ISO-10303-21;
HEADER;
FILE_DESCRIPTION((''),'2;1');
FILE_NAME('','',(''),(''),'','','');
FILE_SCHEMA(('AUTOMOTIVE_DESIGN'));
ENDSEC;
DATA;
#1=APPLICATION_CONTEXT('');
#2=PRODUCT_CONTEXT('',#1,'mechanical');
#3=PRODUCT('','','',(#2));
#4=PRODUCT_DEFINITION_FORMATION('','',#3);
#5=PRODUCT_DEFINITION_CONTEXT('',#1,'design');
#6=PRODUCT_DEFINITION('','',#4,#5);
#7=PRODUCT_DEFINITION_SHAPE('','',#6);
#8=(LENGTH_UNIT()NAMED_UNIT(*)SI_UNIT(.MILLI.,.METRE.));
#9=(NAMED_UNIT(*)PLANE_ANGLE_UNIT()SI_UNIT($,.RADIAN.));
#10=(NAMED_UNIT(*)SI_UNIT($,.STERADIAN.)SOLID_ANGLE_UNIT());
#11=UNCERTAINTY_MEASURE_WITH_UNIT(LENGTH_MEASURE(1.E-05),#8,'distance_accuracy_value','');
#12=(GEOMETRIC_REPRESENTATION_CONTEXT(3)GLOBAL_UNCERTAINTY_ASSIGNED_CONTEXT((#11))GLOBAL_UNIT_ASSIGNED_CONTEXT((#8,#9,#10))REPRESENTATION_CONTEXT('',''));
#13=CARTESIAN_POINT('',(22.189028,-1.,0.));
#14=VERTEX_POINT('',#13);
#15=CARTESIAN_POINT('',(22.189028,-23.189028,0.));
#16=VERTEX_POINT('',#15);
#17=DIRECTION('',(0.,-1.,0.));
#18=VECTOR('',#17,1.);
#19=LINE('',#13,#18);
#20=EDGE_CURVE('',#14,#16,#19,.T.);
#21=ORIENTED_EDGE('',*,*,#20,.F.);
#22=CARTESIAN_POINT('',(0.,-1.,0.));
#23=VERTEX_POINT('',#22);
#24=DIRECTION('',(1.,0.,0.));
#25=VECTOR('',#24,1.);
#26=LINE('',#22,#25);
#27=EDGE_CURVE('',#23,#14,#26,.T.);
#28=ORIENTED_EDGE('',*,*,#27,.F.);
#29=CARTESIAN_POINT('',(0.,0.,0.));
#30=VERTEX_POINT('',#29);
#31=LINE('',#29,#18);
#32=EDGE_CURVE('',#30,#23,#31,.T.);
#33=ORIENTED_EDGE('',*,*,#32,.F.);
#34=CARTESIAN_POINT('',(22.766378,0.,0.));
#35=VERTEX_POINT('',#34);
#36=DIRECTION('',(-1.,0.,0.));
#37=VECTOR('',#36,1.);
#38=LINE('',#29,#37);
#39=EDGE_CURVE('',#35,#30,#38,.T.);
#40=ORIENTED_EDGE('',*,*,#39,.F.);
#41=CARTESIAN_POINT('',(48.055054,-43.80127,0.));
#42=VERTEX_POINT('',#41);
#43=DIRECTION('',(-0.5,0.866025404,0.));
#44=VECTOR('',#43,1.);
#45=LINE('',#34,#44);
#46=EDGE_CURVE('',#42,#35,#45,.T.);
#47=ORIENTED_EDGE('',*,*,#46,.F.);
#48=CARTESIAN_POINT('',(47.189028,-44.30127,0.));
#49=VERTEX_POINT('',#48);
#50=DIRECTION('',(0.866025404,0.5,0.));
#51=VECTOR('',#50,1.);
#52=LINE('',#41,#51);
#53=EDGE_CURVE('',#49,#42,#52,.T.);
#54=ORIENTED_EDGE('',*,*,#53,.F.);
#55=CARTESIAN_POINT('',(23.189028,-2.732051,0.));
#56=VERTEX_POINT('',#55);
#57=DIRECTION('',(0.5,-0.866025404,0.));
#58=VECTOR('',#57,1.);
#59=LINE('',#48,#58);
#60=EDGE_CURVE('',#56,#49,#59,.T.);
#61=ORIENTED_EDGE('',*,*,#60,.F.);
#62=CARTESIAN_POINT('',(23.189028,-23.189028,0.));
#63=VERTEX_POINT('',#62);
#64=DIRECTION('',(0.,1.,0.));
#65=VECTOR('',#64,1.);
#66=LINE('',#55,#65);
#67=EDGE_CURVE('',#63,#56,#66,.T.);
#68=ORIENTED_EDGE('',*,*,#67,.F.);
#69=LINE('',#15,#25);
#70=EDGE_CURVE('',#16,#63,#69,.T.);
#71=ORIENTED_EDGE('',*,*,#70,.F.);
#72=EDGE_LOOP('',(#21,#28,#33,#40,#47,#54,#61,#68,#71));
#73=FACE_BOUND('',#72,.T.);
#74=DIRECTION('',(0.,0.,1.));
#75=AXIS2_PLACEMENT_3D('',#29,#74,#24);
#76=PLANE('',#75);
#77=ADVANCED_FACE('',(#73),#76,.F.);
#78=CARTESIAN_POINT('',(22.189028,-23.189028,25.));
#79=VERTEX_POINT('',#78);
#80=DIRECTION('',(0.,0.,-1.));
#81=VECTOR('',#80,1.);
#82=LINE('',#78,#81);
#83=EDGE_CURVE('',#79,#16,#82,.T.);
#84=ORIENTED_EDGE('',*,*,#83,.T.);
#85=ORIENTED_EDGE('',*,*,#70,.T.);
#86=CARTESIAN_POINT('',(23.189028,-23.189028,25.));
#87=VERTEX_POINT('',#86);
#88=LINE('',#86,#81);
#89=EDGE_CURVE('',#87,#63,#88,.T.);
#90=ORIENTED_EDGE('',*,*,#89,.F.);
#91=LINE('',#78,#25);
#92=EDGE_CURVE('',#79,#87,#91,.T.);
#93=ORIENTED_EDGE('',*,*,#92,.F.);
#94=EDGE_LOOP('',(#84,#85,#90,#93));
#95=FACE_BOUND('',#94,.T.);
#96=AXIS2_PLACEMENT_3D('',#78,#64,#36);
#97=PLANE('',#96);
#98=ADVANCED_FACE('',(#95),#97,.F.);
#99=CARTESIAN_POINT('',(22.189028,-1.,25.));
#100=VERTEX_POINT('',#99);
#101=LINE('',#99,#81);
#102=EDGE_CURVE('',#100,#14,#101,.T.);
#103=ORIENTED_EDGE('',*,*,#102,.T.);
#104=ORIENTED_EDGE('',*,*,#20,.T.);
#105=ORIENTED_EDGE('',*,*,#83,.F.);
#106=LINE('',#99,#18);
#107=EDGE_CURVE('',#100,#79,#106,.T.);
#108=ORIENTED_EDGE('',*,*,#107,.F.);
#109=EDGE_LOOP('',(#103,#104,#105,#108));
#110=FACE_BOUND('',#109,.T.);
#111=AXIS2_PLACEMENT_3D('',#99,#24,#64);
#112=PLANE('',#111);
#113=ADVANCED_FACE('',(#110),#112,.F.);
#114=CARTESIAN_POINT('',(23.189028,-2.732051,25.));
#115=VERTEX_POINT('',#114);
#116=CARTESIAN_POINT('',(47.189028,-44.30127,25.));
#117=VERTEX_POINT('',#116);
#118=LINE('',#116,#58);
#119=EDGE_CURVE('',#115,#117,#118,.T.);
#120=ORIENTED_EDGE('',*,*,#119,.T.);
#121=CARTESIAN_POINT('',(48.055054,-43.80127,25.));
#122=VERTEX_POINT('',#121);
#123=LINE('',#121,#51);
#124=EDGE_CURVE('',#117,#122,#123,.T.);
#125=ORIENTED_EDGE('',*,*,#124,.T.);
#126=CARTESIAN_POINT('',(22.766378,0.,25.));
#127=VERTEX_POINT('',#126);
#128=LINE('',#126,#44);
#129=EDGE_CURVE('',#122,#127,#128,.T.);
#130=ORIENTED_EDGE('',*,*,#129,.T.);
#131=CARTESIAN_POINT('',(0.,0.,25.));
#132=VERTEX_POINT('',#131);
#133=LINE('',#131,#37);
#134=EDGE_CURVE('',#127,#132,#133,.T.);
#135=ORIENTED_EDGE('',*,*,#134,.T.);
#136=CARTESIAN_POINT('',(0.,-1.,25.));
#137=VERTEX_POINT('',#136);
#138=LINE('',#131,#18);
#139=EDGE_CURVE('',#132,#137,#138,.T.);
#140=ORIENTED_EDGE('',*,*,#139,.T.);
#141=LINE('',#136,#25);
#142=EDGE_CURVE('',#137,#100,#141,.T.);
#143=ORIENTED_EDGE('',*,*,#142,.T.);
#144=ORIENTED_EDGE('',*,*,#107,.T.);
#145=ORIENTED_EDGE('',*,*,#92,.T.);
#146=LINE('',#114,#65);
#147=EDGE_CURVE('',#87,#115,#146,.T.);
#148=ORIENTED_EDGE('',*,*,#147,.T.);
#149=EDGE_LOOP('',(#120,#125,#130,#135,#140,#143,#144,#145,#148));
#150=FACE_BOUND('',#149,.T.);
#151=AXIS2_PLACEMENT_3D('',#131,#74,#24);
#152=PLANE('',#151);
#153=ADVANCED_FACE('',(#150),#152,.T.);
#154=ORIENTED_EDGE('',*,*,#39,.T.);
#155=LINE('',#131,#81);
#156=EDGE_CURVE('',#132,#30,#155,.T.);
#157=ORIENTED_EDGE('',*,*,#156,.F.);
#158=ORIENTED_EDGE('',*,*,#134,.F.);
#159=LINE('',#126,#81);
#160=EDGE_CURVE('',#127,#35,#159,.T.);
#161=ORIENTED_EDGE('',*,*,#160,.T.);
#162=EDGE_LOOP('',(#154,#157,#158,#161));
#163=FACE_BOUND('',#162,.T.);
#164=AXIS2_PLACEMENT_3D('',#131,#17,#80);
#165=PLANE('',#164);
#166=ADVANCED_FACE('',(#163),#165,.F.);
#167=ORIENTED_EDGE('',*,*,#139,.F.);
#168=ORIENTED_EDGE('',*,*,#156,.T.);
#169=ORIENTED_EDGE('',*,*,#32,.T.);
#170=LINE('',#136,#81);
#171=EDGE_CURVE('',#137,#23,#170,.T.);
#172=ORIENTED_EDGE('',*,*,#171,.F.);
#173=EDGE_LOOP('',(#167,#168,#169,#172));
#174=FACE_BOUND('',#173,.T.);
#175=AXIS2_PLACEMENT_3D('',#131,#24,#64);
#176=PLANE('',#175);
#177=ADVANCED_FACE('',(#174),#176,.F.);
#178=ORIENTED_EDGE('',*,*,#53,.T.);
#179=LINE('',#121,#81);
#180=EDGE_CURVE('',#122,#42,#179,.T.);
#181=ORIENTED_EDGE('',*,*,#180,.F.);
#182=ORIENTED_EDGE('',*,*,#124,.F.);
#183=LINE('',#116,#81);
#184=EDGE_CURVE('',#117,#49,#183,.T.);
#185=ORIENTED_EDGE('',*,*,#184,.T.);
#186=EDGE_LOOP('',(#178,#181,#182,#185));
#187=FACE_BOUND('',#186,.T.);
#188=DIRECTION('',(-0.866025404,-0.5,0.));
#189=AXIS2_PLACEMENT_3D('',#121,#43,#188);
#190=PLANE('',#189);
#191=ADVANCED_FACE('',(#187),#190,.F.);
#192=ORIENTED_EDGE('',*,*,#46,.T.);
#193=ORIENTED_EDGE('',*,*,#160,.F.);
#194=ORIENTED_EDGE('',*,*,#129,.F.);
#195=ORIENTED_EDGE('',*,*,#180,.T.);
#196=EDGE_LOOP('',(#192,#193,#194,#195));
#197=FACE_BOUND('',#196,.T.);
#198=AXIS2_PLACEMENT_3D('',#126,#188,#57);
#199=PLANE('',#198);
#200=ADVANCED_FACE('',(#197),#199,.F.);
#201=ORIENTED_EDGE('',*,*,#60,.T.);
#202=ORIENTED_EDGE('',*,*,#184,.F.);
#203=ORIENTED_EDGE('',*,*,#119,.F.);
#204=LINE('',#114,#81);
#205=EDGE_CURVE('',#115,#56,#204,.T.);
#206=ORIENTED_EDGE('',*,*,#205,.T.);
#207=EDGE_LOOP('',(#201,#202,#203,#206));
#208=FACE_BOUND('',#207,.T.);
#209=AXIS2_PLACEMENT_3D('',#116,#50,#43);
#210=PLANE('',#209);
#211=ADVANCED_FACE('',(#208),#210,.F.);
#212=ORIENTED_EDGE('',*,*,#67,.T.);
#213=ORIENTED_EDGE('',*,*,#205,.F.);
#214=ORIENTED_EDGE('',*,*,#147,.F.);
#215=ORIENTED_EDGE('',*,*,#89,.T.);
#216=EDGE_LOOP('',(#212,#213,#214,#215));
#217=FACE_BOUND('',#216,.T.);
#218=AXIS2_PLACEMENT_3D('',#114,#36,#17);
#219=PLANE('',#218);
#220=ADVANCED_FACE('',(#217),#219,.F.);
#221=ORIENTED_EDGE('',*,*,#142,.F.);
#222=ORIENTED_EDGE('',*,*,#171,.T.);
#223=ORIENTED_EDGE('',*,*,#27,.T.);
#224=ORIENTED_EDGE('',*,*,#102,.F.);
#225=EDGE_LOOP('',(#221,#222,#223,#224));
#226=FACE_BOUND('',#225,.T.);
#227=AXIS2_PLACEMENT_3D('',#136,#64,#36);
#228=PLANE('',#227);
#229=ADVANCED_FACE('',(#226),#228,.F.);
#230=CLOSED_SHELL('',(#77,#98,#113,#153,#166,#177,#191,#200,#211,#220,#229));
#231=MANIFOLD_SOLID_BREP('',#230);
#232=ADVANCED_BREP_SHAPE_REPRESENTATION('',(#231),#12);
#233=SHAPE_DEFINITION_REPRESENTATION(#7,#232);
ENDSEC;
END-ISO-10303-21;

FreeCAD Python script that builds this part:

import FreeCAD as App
import Part
import Sketcher

V = App.Vector
Q = App.Units.Quantity


def add_polygon(sketch, points):
    """Adds a closed chain of lines whose ends are joined by coincident constraints."""
    first, n = sketch.GeometryCount, len(points)
    for a, b in zip(points, points[1:] + points[:1]):
        sketch.addGeometry(Part.LineSegment(App.Vector(*a, 0), App.Vector(*b, 0)), False)
    for i in range(n):
        sketch.addConstraint(Sketcher.Constraint("Coincident", first + i, 2, first + (i + 1) % n, 1))

doc = App.newDocument("Part")
body = doc.addObject("PartDesign::Body", "Body")

sketch1 = body.newObject("Sketcher::SketchObject", "Sketch")
sketch1.AttachmentSupport = (doc.getObject("XY_Plane"), [""])
sketch1.MapMode = "FlatFace"
add_polygon(sketch1, [(22.8, 0), (0, 0), (0, -1), (22.2, -1), (22.2, -23.2), (23.2, -23.2), (23.2, -2.7), (47.2, -44.3), (48.1, -43.8)])
sketch1.addConstraint(Sketcher.Constraint("Horizontal", 0))
sketch1.addConstraint(Sketcher.Constraint("Vertical", 1))
sketch1.addConstraint(Sketcher.Constraint("Horizontal", 2))
sketch1.addConstraint(Sketcher.Constraint("Vertical", 3))
sketch1.addConstraint(Sketcher.Constraint("Horizontal", 4))
sketch1.addConstraint(Sketcher.Constraint("Vertical", 5))
sketch1.addConstraint(Sketcher.Constraint("Coincident", 0, 2, -1, 1))
sketch1.addConstraint(Sketcher.Constraint("Perpendicular", 6, 7))
sketch1.addConstraint(Sketcher.Constraint("Perpendicular", 7, 8))
sketch1.addConstraint(Sketcher.Constraint("Equal", 4, 1))
sketch1.addConstraint(Sketcher.Constraint("Equal", 2, 3))
sketch1.addConstraint(Sketcher.Constraint("DistanceX", 4, 1, 4, 2, Q("1 mm")))
sketch1.addConstraint(Sketcher.Constraint("Angle", 6, Q("-60 deg")))
sketch1.addConstraint(Sketcher.Constraint("Distance", 6, Q("48 mm")))
sketch1.addConstraint(Sketcher.Constraint("Distance", 7, Q("1 mm")))
sketch1.addConstraint(Sketcher.Constraint("DistanceX", 0, 2, 0, 1, Q("22.766378 mm")))
sketch1.addConstraint(Sketcher.Constraint("DistanceX", 2, 1, 2, 2, Q("22.189028 mm")))
pad1 = body.newObject("PartDesign::Pad", "Pad")
pad1.Profile = sketch1
pad1.Length = 25

doc.recompute()
